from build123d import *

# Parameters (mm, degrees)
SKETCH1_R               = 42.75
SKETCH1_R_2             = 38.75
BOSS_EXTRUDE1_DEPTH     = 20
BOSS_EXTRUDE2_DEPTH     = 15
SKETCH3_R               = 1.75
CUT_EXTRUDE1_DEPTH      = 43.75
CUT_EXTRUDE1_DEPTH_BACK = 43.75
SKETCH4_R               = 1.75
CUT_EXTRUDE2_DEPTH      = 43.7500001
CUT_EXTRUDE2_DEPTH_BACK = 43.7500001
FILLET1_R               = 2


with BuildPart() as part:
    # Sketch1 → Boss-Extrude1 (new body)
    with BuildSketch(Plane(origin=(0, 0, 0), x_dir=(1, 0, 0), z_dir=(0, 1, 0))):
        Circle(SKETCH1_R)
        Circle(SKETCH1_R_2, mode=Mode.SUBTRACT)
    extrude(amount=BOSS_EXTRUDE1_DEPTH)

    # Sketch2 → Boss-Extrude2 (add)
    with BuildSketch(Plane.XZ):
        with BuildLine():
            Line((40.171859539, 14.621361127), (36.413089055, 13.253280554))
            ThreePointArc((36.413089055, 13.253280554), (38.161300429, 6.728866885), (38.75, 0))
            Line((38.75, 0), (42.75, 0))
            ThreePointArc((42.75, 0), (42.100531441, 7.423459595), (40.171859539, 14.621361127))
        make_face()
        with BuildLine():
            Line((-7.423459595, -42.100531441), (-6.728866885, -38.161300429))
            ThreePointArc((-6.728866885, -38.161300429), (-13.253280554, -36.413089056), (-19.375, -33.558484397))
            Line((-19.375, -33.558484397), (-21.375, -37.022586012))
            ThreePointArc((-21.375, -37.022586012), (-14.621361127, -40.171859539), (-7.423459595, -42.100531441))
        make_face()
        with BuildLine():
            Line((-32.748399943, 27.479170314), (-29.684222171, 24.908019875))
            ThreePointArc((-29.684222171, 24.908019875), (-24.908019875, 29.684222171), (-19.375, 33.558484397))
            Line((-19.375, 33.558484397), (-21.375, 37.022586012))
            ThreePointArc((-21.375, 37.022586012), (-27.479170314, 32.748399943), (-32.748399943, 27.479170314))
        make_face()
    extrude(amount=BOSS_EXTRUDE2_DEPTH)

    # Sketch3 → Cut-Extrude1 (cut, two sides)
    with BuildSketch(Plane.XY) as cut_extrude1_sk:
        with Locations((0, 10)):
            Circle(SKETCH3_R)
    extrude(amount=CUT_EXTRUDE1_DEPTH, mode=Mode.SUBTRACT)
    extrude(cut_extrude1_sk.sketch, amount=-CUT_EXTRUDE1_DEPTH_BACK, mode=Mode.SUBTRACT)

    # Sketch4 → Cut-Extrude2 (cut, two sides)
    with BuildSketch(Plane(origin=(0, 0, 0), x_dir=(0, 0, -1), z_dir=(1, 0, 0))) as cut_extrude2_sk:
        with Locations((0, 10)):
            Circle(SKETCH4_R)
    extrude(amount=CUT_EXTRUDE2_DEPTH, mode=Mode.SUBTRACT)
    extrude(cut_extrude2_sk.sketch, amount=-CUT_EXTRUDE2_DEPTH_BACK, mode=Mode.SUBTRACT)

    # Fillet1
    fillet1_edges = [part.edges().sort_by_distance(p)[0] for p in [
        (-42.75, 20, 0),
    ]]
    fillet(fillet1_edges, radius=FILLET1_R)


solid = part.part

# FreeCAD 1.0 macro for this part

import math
import FreeCAD as App
import Part
import Sketcher

V = App.Vector
Q = App.Units.Quantity


def edges_at(feature, points):
    """Names of the edges that pass closest to the given points."""
    edges = feature.Shape.Edges
    near = lambda p: min(range(len(edges)), key=lambda i: edges[i].distToShape(Part.Vertex(*p))[0])
    return sorted({f"Edge{near(p) + 1}" for p in points})

doc = App.newDocument("Part")
body = doc.addObject("PartDesign::Body", "Body")

# Sketch on XZ plane
sketch1 = body.newObject("Sketcher::SketchObject", "Sketch")
sketch1.AttachmentSupport = (doc.getObject("XZ_Plane"), [""])
sketch1.MapMode = "FlatFace"
sketch1.addGeometry(Part.Circle(V(0, 0, 0), V(0, 0, 1), 42.75), False)
sketch1.addGeometry(Part.Circle(V(0, 0, 0), V(0, 0, 1), 38.75), False)
sketch1.addConstraint(Sketcher.Constraint("Coincident", 0, 3, -1, 1))
sketch1.addConstraint(Sketcher.Constraint("Coincident", 1, 3, -1, 1))
sketch1.addConstraint(Sketcher.Constraint("Diameter", 0, Q("85.5 mm")))
sketch1.addConstraint(Sketcher.Constraint("Diameter", 1, Q("77.5 mm")))
pad1 = body.newObject("PartDesign::Pad", "Pad")
pad1.Profile = sketch1
pad1.Length = 20
pad1.Reversed = True

# Sketch on XZ plane
sketch2 = body.newObject("Sketcher::SketchObject", "Sketch001")
sketch2.AttachmentSupport = (doc.getObject("XZ_Plane"), [""])
sketch2.MapMode = "FlatFace"
sketch2.addGeometry(Part.LineSegment(V(40.17186, 14.621361, 0), V(36.413089, 13.253281, 0)), False)
sketch2.addGeometry(Part.ArcOfCircle(Part.Circle(V(0, 0, 0), V(0, 0, 1), 38.75), math.radians(0), math.radians(20)), False)
sketch2.addGeometry(Part.LineSegment(V(38.75, 0, 0), V(42.75, 0, 0)), False)
sketch2.addGeometry(Part.ArcOfCircle(Part.Circle(V(0, 0, 0), V(0, 0, 1), 42.75), math.radians(0), math.radians(20)), False)
sketch2.addGeometry(Part.LineSegment(V(-7.42346, -42.100531, 0), V(-6.728867, -38.1613, 0)), False)
sketch2.addGeometry(Part.ArcOfCircle(Part.Circle(V(0, 0, 0), V(0, 0, 1), 38.75), math.radians(-120), math.radians(-100)), False)
sketch2.addGeometry(Part.LineSegment(V(-19.375, -33.558484, 0), V(-21.375, -37.022586, 0)), False)
sketch2.addGeometry(Part.ArcOfCircle(Part.Circle(V(0, 0, 0), V(0, 0, 1), 42.75), math.radians(-120), math.radians(-100)), False)
sketch2.addGeometry(Part.LineSegment(V(-32.7484, 27.47917, 0), V(-29.684222, 24.90802, 0)), False)
sketch2.addGeometry(Part.ArcOfCircle(Part.Circle(V(0, 0, 0), V(0, 0, 1), 38.75), math.radians(120), math.radians(140)), False)
sketch2.addGeometry(Part.LineSegment(V(-19.375, 33.558484, 0), V(-21.375, 37.022586, 0)), False)
sketch2.addGeometry(Part.ArcOfCircle(Part.Circle(V(0, 0, 0), V(0, 0, 1), 42.75), math.radians(120), math.radians(140)), False)
sketch2.addConstraint(Sketcher.Constraint("Coincident", 0, 2, 1, 2))
sketch2.addConstraint(Sketcher.Constraint("Coincident", 1, 1, 2, 1))
sketch2.addConstraint(Sketcher.Constraint("Coincident", 2, 2, 3, 1))
sketch2.addConstraint(Sketcher.Constraint("Coincident", 3, 2, 0, 1))
sketch2.addConstraint(Sketcher.Constraint("Coincident", 4, 2, 5, 2))
sketch2.addConstraint(Sketcher.Constraint("Coincident", 5, 1, 6, 1))
sketch2.addConstraint(Sketcher.Constraint("Coincident", 6, 2, 7, 1))
sketch2.addConstraint(Sketcher.Constraint("Coincident", 7, 2, 4, 1))
sketch2.addConstraint(Sketcher.Constraint("Coincident", 8, 2, 9, 2))
sketch2.addConstraint(Sketcher.Constraint("Coincident", 9, 1, 10, 1))
sketch2.addConstraint(Sketcher.Constraint("Coincident", 10, 2, 11, 1))
sketch2.addConstraint(Sketcher.Constraint("Coincident", 11, 2, 8, 1))
sketch2.addConstraint(Sketcher.Constraint("Horizontal", 2))
sketch2.addConstraint(Sketcher.Constraint("Coincident", 1, 3, -1, 1))
sketch2.addConstraint(Sketcher.Constraint("Coincident", 3, 3, -1, 1))
sketch2.addConstraint(Sketcher.Constraint("Coincident", 5, 3, -1, 1))
sketch2.addConstraint(Sketcher.Constraint("Coincident", 7, 3, -1, 1))
sketch2.addConstraint(Sketcher.Constraint("Coincident", 9, 3, -1, 1))
sketch2.addConstraint(Sketcher.Constraint("Coincident", 11, 3, -1, 1))
sketch2.addConstraint(Sketcher.Constraint("Equal", 1, 5))
sketch2.addConstraint(Sketcher.Constraint("Equal", 3, 7))
sketch2.addConstraint(Sketcher.Constraint("Equal", 5, 9))
sketch2.addConstraint(Sketcher.Constraint("Equal", 7, 11))
sketch2.addConstraint(Sketcher.Constraint("PointOnObject", 1, 1, -1))
sketch2.addConstraint(Sketcher.Constraint("Vertical", 5, 1, 9, 1))
sketch2.addConstraint(Sketcher.Constraint("Vertical", 6, 2, 10, 2))
sketch2.addConstraint(Sketcher.Constraint("DistanceX", 2, 1, 2, 2, Q("4 mm")))
sketch2.addConstraint(Sketcher.Constraint("Angle", 0, Q("-160 deg")))
sketch2.addConstraint(Sketcher.Constraint("Angle", 4, Q("80 deg")))
sketch2.addConstraint(Sketcher.Constraint("Angle", 6, Q("-120 deg")))
sketch2.addConstraint(Sketcher.Constraint("Angle", 8, Q("-40 deg")))
sketch2.addConstraint(Sketcher.Constraint("Radius", 1, Q("38.75 mm")))
sketch2.addConstraint(Sketcher.Constraint("DistanceX", 5, 1, -1, 1, Q("19.375 mm")))
sketch2.addConstraint(Sketcher.Constraint("DistanceY", 4, 2, -1, 1, Q("38.1613 mm")))
sketch2.addConstraint(Sketcher.Constraint("DistanceX", 11, 2, -1, 1, Q("32.7484 mm")))
sketch2.addConstraint(Sketcher.Constraint("DistanceX", -1, 1, 0, 2, Q("36.413089 mm")))
pad2 = body.newObject("PartDesign::Pad", "Pad001")
pad2.Profile = sketch2
pad2.Length = 15

# Sketch on XY plane
sketch3 = body.newObject("Sketcher::SketchObject", "Sketch002")
sketch3.AttachmentSupport = (doc.getObject("XY_Plane"), [""])
sketch3.MapMode = "FlatFace"
sketch3.addGeometry(Part.Circle(V(0, 10, 0), V(0, 0, 1), 1.75), False)
sketch3.addConstraint(Sketcher.Constraint("PointOnObject", 0, 3, -2))
sketch3.addConstraint(Sketcher.Constraint("Diameter", 0, Q("3.5 mm")))
sketch3.addConstraint(Sketcher.Constraint("DistanceY", -1, 1, 0, 3, Q("10 mm")))
pocket1 = body.newObject("PartDesign::Pocket", "Pocket")
pocket1.Profile = sketch3
pocket1.Type = "ThroughAll"
pocket1.Midplane = True

# Sketch on YZ plane
sketch4 = body.newObject("Sketcher::SketchObject", "Sketch003")
sketch4.AttachmentSupport = (doc.getObject("YZ_Plane"), [""])
sketch4.MapMode = "FlatFace"
sketch4.addGeometry(Part.Circle(V(10, 0, 0), V(0, 0, 1), 1.75), False)
sketch4.addConstraint(Sketcher.Constraint("PointOnObject", 0, 3, -1))
sketch4.addConstraint(Sketcher.Constraint("Diameter", 0, Q("3.5 mm")))
sketch4.addConstraint(Sketcher.Constraint("DistanceX", -1, 1, 0, 3, Q("10 mm")))
pocket2 = body.newObject("PartDesign::Pocket", "Pocket001")
pocket2.Profile = sketch4
pocket2.Type = "ThroughAll"
pocket2.Midplane = True
doc.recompute()

fillet = body.newObject("PartDesign::Fillet", "Fillet")
fillet.Base = (pocket2, edges_at(pocket2, [(-42.75, 20, 0)]))
fillet.Radius = 2

doc.recompute()
